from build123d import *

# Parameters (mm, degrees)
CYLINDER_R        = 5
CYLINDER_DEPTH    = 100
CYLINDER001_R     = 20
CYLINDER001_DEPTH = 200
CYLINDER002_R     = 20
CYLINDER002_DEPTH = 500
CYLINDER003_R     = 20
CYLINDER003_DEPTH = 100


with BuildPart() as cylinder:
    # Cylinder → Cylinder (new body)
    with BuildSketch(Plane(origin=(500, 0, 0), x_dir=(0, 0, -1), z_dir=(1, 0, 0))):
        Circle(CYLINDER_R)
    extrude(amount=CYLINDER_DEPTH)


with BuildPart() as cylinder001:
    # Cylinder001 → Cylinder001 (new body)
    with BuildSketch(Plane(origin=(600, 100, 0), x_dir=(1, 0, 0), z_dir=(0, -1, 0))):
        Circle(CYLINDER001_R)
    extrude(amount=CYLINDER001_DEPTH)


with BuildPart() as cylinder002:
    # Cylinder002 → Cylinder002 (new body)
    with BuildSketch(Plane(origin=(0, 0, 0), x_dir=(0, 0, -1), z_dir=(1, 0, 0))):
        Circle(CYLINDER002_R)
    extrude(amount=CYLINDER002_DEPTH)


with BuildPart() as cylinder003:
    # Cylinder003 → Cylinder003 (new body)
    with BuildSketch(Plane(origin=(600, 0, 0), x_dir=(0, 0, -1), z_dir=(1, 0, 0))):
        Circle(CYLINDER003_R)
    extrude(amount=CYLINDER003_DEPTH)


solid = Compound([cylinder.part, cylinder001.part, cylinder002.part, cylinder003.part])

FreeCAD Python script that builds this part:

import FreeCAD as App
import Part
import Sketcher

V = App.Vector

doc = App.newDocument("Part")
body = doc.addObject("PartDesign::Body", "Body")

# Sketch on YZ plane
sketch1 = body.newObject("Sketcher::SketchObject", "Sketch")
sketch1.AttachmentSupport = (doc.getObject("YZ_Plane"), [""])
sketch1.MapMode = "FlatFace"
sketch1.AttachmentOffset = App.Placement(V(0, 0, 500), App.Rotation())
sketch1.addGeometry(Part.Circle(V(0, 0, 0), V(0, 0, 1), 5), False)
sketch1.addConstraint(Sketcher.Constraint("Coincident", 0, 3, -1, 1))
sketch1.addConstraint(Sketcher.Constraint("Diameter", 0, 10.0))
pad1 = body.newObject("PartDesign::Pad", "Pad")
pad1.Profile = sketch1
pad1.Length = 100
body2 = doc.addObject("PartDesign::Body", "Body001")

# Sketch on XZ plane
sketch2 = body2.newObject("Sketcher::SketchObject", "Sketch001")
sketch2.AttachmentSupport = (doc.getObject("XZ_Plane001"), [""])
sketch2.MapMode = "FlatFace"
sketch2.AttachmentOffset = App.Placement(V(0, 0, -100), App.Rotation())
sketch2.addGeometry(Part.Circle(V(600, 0, 0), V(0, 0, 1), 20), False)
sketch2.addConstraint(Sketcher.Constraint("PointOnObject", 0, 3, -1))
sketch2.addConstraint(Sketcher.Constraint("Diameter", 0, 40.0))
sketch2.addConstraint(Sketcher.Constraint("DistanceX", -1, 1, 0, 3, 600.0))
pad2 = body2.newObject("PartDesign::Pad", "Pad001")
pad2.Profile = sketch2
pad2.Length = 200
body3 = doc.addObject("PartDesign::Body", "Body002")

# Sketch on YZ plane
sketch3 = body3.newObject("Sketcher::SketchObject", "Sketch002")
sketch3.AttachmentSupport = (doc.getObject("YZ_Plane002"), [""])
sketch3.MapMode = "FlatFace"
sketch3.addGeometry(Part.Circle(V(0, 0, 0), V(0, 0, 1), 20), False)
sketch3.addConstraint(Sketcher.Constraint("Coincident", 0, 3, -1, 1))
sketch3.addConstraint(Sketcher.Constraint("Diameter", 0, 40.0))
pad3 = body3.newObject("PartDesign::Pad", "Pad002")
pad3.Profile = sketch3
pad3.Length = 500
body4 = doc.addObject("PartDesign::Body", "Body003")

# Sketch on YZ plane
sketch4 = body4.newObject("Sketcher::SketchObject", "Sketch003")
sketch4.AttachmentSupport = (doc.getObject("YZ_Plane003"), [""])
sketch4.MapMode = "FlatFace"
sketch4.AttachmentOffset = App.Placement(V(0, 0, 600), App.Rotation())
sketch4.addGeometry(Part.Circle(V(0, 0, 0), V(0, 0, 1), 20), False)
sketch4.addConstraint(Sketcher.Constraint("Coincident", 0, 3, -1, 1))
sketch4.addConstraint(Sketcher.Constraint("Diameter", 0, 40.0))
pad4 = body4.newObject("PartDesign::Pad", "Pad003")
pad4.Profile = sketch4
pad4.Length = 100

doc.recompute()
